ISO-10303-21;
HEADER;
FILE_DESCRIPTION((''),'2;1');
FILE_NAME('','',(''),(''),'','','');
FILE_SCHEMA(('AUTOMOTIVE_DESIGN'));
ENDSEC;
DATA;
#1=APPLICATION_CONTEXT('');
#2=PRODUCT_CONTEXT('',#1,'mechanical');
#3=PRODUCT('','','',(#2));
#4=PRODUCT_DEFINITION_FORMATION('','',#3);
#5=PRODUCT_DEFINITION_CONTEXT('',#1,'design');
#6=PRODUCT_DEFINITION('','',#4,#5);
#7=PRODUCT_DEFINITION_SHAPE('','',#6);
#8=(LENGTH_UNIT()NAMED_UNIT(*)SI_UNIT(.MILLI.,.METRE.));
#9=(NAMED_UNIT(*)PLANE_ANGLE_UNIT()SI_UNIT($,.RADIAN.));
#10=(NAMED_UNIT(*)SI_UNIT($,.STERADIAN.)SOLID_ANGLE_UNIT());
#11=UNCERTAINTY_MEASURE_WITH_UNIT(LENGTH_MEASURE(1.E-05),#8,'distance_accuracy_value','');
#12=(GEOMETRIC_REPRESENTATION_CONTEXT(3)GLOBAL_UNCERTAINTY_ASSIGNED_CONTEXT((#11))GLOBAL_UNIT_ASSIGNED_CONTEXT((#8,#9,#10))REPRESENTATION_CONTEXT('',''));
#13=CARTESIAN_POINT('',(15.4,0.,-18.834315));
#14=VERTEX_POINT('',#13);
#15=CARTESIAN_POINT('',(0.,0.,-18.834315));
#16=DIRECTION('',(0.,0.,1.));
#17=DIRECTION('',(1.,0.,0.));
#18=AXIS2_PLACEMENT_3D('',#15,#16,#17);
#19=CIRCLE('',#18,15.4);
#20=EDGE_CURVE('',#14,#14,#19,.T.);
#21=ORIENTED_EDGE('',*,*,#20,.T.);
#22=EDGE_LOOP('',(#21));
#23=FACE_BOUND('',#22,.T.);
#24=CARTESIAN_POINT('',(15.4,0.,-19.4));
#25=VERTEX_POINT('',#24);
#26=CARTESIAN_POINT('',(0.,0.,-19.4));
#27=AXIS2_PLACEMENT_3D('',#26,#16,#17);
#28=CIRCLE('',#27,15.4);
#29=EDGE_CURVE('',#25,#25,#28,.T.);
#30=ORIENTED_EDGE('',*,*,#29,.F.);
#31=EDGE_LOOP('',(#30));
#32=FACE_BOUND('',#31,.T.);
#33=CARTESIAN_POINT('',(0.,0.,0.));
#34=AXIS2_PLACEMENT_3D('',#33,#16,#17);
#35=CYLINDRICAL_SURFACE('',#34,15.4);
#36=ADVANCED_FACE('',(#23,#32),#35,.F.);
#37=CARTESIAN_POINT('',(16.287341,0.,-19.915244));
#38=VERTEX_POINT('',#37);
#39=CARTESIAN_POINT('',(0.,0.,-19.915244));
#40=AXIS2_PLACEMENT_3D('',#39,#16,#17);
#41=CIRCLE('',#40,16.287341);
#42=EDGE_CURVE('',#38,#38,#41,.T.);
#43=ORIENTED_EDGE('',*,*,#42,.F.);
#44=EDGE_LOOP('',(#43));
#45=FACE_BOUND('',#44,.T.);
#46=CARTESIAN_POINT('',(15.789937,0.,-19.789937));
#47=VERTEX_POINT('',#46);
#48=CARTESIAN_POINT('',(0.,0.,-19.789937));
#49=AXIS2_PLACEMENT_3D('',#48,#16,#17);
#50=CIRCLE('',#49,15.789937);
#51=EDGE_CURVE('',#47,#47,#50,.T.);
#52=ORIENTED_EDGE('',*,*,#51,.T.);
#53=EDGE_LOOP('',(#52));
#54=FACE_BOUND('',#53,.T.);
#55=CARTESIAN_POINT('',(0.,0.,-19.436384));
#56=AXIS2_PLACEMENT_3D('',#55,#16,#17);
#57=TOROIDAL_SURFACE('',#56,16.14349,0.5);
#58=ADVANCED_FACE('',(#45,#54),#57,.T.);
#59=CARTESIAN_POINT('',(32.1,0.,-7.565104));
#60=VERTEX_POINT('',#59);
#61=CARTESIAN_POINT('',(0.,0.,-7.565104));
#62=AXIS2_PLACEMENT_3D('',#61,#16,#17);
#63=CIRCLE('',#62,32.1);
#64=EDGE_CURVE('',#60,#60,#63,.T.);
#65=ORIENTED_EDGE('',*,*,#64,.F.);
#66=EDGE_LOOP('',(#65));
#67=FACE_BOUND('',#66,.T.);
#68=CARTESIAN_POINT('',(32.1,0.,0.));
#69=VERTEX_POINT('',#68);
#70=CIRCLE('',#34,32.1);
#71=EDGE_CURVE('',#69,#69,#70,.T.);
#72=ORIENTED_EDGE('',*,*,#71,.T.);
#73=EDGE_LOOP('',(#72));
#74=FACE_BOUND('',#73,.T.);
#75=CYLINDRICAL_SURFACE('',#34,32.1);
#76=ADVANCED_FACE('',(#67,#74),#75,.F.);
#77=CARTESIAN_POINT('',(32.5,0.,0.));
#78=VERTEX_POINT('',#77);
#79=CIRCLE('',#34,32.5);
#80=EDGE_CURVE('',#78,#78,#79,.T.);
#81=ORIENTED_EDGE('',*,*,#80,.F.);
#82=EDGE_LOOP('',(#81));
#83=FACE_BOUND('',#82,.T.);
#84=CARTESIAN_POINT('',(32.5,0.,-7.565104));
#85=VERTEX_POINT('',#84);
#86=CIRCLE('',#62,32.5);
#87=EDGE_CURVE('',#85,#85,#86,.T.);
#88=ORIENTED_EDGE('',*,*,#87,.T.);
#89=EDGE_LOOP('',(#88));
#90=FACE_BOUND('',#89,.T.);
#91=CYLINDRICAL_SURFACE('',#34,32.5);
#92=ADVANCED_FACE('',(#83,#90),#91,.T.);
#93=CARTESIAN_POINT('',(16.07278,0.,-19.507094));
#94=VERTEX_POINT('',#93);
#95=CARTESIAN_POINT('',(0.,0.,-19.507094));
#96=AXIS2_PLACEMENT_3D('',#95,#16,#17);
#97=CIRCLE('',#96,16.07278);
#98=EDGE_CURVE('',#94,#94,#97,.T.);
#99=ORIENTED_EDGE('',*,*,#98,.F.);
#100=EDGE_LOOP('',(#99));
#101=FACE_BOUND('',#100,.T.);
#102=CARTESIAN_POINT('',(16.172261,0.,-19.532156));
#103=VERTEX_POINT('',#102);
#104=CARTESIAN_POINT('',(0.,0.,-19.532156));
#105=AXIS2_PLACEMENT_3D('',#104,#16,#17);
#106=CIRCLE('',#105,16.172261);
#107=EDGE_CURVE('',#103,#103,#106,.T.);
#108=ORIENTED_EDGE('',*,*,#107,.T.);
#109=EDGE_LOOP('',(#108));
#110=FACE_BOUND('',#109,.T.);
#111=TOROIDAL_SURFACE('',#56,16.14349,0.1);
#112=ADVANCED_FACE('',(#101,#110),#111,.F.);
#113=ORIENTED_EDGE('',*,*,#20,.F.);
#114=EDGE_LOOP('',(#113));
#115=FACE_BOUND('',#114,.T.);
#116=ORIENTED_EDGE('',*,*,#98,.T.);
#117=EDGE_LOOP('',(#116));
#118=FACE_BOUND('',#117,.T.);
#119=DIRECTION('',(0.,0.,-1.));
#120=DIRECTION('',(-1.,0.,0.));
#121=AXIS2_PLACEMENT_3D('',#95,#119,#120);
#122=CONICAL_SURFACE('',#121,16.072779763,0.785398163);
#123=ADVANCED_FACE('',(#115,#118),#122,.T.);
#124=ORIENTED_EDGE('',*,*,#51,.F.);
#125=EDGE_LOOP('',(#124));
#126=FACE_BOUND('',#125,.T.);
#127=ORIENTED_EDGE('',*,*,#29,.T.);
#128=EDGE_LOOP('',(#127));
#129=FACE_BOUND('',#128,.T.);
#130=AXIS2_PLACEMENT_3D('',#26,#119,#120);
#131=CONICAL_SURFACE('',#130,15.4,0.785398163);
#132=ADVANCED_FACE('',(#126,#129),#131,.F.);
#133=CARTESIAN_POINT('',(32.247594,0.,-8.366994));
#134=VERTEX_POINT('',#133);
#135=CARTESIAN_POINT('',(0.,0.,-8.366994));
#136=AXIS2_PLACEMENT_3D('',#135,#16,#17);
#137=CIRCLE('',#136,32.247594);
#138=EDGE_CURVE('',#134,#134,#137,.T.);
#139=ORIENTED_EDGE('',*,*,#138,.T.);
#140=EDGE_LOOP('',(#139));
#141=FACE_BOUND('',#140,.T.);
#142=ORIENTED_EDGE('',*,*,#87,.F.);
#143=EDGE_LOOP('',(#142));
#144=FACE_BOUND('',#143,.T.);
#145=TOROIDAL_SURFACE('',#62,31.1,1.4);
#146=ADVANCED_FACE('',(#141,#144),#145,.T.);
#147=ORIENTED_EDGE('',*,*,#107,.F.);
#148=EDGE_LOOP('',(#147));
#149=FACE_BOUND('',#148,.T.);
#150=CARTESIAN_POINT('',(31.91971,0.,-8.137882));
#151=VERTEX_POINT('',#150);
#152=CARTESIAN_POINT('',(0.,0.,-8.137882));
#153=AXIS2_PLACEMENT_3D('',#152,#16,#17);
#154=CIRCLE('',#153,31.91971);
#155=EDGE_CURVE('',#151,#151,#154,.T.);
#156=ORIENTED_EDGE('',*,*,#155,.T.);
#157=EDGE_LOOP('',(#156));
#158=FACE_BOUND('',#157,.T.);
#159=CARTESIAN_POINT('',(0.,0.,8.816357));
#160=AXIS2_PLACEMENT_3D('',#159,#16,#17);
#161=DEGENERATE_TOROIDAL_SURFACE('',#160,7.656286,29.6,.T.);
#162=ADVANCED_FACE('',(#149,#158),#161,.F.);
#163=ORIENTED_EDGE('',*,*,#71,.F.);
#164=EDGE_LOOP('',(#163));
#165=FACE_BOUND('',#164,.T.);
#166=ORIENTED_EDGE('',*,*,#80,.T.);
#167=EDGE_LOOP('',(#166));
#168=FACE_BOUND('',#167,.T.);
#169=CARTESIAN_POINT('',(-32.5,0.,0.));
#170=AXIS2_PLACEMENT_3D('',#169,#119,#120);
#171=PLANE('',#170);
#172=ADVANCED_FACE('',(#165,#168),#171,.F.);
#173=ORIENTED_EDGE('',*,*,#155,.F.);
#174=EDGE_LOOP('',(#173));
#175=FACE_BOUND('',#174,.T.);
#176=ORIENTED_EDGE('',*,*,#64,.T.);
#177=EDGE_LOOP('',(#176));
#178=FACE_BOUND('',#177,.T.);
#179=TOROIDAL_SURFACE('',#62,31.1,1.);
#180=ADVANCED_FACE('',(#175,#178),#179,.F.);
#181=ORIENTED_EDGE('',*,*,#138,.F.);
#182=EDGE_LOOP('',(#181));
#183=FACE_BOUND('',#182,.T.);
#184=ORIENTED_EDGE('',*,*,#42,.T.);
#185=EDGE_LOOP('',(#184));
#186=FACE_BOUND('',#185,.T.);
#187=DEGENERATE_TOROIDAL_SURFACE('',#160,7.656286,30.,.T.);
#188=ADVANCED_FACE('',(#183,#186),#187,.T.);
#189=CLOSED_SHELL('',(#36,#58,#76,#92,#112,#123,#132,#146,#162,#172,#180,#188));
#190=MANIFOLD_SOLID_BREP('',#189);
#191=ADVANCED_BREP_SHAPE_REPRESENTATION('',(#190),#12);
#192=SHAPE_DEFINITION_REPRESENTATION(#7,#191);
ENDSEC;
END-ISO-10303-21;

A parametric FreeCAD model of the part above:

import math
import FreeCAD as App
import Part
import Sketcher

V = App.Vector
Q = App.Units.Quantity

doc = App.newDocument("Part")
params = doc.addObject("Spreadsheet::Sheet", "Params")
for row, (alias, value) in enumerate([
    ("sketch1_radius", "1 mm"),
    ("sketch1_radius2", "30 mm"),
    ("sketch1_radius3", "29.6 mm"),
    ("sketch1_radius4", "0.1 mm"),
    ("revolution_angle", "360 deg"),
], start=1):
    params.set(f"A{row}", alias)
    params.set(f"B{row}", "=" + value)
    params.setAlias(f"B{row}", alias)

body = doc.addObject("PartDesign::Body", "Body")

# Sketch on XZ plane
sketch1 = body.newObject("Sketcher::SketchObject", "Sketch")
sketch1.AttachmentSupport = (doc.getObject("XZ_Plane"), [""])
sketch1.MapMode = "FlatFace"
sketch1.addGeometry(Part.LineSegment(V(-32.5, -7.57, 0), V(-32.5, 0, 0)), False)
sketch1.addGeometry(Part.LineSegment(V(-32.5, 0, 0), V(-32.1, 0, 0)), False)
sketch1.addGeometry(Part.LineSegment(V(-32.1, 0, 0), V(-32.1, -7.57, 0)), False)
sketch1.addGeometry(Part.ArcOfCircle(Part.Circle(V(-31.1, -7.57, 0), V(0, 0, 1), 1), math.radians(180), math.radians(215)), False)
sketch1.addGeometry(Part.ArcOfCircle(Part.Circle(V(-7.66, 8.82, 0), V(0, 0, 1), 29.6), math.radians(-145), math.radians(-107)), False)
sketch1.addGeometry(Part.ArcOfCircle(Part.Circle(V(-16.14, -19.44, 0), V(0, 0, 1), 0.1), math.radians(-107), math.radians(-45)), False)
sketch1.addGeometry(Part.LineSegment(V(-16.07, -19.51, 0), V(-15.4, -18.83, 0)), False)
sketch1.addGeometry(Part.LineSegment(V(-15.4, -18.83, 0), V(-15.4, -19.4, 0)), False)
sketch1.addGeometry(Part.LineSegment(V(-15.4, -19.4, 0), V(-15.79, -19.79, 0)), False)
sketch1.addGeometry(Part.ArcOfCircle(Part.Circle(V(-16.14, -19.44, 0), V(0, 0, 1), 0.5), math.radians(-107), math.radians(-45)), False)
sketch1.addGeometry(Part.ArcOfCircle(Part.Circle(V(-7.66, 8.82, 0), V(0, 0, 1), 30), math.radians(-145), math.radians(-107)), False)
sketch1.addGeometry(Part.ArcOfCircle(Part.Circle(V(-31.1, -7.57, 0), V(0, 0, 1), 1.4), math.radians(-180), math.radians(-145)), False)
sketch1.addConstraint(Sketcher.Constraint("Coincident", 0, 2, 1, 1))
sketch1.addConstraint(Sketcher.Constraint("Coincident", 1, 2, 2, 1))
sketch1.addConstraint(Sketcher.Constraint("Tangent", 2, 2, 3, 1))
sketch1.addConstraint(Sketcher.Constraint("Tangent", 3, 2, 4, 1))
sketch1.addConstraint(Sketcher.Constraint("Tangent", 4, 2, 5, 1))
sketch1.addConstraint(Sketcher.Constraint("Tangent", 5, 2, 6, 1))
sketch1.addConstraint(Sketcher.Constraint("Coincident", 6, 2, 7, 1))
sketch1.addConstraint(Sketcher.Constraint("Coincident", 7, 2, 8, 1))
sketch1.addConstraint(Sketcher.Constraint("Tangent", 8, 2, 9, 2))
sketch1.addConstraint(Sketcher.Constraint("Tangent", 9, 1, 10, 2))
sketch1.addConstraint(Sketcher.Constraint("Tangent", 10, 1, 11, 2))
sketch1.addConstraint(Sketcher.Constraint("Tangent", 11, 1, 0, 1))
sketch1.addConstraint(Sketcher.Constraint("Vertical", 0))
sketch1.addConstraint(Sketcher.Constraint("Horizontal", 1))
sketch1.addConstraint(Sketcher.Constraint("Vertical", 2))
sketch1.addConstraint(Sketcher.Constraint("Vertical", 7))
sketch1.addConstraint(Sketcher.Constraint("Coincident", 9, 3, 5, 3))
sketch1.addConstraint(Sketcher.Constraint("Coincident", 10, 3, 4, 3))
sketch1.addConstraint(Sketcher.Constraint("Coincident", 11, 3, 3, 3))
sketch1.addConstraint(Sketcher.Constraint("PointOnObject", 0, 2, -1))
sketch1.addConstraint(Sketcher.Constraint("Parallel", 6, 8))
sketch1.addConstraint(Sketcher.Constraint("Radius", 3, 1.0))
sketch1.addConstraint(Sketcher.Constraint("Radius", 10, 30.0))
sketch1.addConstraint(Sketcher.Constraint("Radius", 4, 29.6))
sketch1.addConstraint(Sketcher.Constraint("Radius", 5, 0.1))
sketch1.addConstraint(Sketcher.Constraint("Angle", 6, Q("45 deg")))
sketch1.addConstraint(Sketcher.Constraint("DistanceX", 3, 3, -1, 1, 31.1))
sketch1.addConstraint(Sketcher.Constraint("DistanceX", 6, 2, -1, 1, 15.4))
sketch1.addConstraint(Sketcher.Constraint("DistanceY", 7, 2, -1, 1, 19.4))
sketch1.addConstraint(Sketcher.Constraint("DistanceY", 0, 1, 0, 2, 7.565104))
sketch1.addConstraint(Sketcher.Constraint("DistanceX", 5, 3, -1, 1, 16.14349))
sketch1.setExpression("Constraints[21]", "Params.sketch1_radius")
sketch1.setExpression("Constraints[22]", "Params.sketch1_radius2")
sketch1.setExpression("Constraints[23]", "Params.sketch1_radius3")
sketch1.setExpression("Constraints[24]", "Params.sketch1_radius4")
revolution = body.newObject("PartDesign::Revolution", "Revolution")
revolution.Profile = sketch1
revolution.ReferenceAxis = (sketch1, ["V_Axis"])
revolution.setExpression("Angle", "Params.revolution_angle")

doc.recompute()
